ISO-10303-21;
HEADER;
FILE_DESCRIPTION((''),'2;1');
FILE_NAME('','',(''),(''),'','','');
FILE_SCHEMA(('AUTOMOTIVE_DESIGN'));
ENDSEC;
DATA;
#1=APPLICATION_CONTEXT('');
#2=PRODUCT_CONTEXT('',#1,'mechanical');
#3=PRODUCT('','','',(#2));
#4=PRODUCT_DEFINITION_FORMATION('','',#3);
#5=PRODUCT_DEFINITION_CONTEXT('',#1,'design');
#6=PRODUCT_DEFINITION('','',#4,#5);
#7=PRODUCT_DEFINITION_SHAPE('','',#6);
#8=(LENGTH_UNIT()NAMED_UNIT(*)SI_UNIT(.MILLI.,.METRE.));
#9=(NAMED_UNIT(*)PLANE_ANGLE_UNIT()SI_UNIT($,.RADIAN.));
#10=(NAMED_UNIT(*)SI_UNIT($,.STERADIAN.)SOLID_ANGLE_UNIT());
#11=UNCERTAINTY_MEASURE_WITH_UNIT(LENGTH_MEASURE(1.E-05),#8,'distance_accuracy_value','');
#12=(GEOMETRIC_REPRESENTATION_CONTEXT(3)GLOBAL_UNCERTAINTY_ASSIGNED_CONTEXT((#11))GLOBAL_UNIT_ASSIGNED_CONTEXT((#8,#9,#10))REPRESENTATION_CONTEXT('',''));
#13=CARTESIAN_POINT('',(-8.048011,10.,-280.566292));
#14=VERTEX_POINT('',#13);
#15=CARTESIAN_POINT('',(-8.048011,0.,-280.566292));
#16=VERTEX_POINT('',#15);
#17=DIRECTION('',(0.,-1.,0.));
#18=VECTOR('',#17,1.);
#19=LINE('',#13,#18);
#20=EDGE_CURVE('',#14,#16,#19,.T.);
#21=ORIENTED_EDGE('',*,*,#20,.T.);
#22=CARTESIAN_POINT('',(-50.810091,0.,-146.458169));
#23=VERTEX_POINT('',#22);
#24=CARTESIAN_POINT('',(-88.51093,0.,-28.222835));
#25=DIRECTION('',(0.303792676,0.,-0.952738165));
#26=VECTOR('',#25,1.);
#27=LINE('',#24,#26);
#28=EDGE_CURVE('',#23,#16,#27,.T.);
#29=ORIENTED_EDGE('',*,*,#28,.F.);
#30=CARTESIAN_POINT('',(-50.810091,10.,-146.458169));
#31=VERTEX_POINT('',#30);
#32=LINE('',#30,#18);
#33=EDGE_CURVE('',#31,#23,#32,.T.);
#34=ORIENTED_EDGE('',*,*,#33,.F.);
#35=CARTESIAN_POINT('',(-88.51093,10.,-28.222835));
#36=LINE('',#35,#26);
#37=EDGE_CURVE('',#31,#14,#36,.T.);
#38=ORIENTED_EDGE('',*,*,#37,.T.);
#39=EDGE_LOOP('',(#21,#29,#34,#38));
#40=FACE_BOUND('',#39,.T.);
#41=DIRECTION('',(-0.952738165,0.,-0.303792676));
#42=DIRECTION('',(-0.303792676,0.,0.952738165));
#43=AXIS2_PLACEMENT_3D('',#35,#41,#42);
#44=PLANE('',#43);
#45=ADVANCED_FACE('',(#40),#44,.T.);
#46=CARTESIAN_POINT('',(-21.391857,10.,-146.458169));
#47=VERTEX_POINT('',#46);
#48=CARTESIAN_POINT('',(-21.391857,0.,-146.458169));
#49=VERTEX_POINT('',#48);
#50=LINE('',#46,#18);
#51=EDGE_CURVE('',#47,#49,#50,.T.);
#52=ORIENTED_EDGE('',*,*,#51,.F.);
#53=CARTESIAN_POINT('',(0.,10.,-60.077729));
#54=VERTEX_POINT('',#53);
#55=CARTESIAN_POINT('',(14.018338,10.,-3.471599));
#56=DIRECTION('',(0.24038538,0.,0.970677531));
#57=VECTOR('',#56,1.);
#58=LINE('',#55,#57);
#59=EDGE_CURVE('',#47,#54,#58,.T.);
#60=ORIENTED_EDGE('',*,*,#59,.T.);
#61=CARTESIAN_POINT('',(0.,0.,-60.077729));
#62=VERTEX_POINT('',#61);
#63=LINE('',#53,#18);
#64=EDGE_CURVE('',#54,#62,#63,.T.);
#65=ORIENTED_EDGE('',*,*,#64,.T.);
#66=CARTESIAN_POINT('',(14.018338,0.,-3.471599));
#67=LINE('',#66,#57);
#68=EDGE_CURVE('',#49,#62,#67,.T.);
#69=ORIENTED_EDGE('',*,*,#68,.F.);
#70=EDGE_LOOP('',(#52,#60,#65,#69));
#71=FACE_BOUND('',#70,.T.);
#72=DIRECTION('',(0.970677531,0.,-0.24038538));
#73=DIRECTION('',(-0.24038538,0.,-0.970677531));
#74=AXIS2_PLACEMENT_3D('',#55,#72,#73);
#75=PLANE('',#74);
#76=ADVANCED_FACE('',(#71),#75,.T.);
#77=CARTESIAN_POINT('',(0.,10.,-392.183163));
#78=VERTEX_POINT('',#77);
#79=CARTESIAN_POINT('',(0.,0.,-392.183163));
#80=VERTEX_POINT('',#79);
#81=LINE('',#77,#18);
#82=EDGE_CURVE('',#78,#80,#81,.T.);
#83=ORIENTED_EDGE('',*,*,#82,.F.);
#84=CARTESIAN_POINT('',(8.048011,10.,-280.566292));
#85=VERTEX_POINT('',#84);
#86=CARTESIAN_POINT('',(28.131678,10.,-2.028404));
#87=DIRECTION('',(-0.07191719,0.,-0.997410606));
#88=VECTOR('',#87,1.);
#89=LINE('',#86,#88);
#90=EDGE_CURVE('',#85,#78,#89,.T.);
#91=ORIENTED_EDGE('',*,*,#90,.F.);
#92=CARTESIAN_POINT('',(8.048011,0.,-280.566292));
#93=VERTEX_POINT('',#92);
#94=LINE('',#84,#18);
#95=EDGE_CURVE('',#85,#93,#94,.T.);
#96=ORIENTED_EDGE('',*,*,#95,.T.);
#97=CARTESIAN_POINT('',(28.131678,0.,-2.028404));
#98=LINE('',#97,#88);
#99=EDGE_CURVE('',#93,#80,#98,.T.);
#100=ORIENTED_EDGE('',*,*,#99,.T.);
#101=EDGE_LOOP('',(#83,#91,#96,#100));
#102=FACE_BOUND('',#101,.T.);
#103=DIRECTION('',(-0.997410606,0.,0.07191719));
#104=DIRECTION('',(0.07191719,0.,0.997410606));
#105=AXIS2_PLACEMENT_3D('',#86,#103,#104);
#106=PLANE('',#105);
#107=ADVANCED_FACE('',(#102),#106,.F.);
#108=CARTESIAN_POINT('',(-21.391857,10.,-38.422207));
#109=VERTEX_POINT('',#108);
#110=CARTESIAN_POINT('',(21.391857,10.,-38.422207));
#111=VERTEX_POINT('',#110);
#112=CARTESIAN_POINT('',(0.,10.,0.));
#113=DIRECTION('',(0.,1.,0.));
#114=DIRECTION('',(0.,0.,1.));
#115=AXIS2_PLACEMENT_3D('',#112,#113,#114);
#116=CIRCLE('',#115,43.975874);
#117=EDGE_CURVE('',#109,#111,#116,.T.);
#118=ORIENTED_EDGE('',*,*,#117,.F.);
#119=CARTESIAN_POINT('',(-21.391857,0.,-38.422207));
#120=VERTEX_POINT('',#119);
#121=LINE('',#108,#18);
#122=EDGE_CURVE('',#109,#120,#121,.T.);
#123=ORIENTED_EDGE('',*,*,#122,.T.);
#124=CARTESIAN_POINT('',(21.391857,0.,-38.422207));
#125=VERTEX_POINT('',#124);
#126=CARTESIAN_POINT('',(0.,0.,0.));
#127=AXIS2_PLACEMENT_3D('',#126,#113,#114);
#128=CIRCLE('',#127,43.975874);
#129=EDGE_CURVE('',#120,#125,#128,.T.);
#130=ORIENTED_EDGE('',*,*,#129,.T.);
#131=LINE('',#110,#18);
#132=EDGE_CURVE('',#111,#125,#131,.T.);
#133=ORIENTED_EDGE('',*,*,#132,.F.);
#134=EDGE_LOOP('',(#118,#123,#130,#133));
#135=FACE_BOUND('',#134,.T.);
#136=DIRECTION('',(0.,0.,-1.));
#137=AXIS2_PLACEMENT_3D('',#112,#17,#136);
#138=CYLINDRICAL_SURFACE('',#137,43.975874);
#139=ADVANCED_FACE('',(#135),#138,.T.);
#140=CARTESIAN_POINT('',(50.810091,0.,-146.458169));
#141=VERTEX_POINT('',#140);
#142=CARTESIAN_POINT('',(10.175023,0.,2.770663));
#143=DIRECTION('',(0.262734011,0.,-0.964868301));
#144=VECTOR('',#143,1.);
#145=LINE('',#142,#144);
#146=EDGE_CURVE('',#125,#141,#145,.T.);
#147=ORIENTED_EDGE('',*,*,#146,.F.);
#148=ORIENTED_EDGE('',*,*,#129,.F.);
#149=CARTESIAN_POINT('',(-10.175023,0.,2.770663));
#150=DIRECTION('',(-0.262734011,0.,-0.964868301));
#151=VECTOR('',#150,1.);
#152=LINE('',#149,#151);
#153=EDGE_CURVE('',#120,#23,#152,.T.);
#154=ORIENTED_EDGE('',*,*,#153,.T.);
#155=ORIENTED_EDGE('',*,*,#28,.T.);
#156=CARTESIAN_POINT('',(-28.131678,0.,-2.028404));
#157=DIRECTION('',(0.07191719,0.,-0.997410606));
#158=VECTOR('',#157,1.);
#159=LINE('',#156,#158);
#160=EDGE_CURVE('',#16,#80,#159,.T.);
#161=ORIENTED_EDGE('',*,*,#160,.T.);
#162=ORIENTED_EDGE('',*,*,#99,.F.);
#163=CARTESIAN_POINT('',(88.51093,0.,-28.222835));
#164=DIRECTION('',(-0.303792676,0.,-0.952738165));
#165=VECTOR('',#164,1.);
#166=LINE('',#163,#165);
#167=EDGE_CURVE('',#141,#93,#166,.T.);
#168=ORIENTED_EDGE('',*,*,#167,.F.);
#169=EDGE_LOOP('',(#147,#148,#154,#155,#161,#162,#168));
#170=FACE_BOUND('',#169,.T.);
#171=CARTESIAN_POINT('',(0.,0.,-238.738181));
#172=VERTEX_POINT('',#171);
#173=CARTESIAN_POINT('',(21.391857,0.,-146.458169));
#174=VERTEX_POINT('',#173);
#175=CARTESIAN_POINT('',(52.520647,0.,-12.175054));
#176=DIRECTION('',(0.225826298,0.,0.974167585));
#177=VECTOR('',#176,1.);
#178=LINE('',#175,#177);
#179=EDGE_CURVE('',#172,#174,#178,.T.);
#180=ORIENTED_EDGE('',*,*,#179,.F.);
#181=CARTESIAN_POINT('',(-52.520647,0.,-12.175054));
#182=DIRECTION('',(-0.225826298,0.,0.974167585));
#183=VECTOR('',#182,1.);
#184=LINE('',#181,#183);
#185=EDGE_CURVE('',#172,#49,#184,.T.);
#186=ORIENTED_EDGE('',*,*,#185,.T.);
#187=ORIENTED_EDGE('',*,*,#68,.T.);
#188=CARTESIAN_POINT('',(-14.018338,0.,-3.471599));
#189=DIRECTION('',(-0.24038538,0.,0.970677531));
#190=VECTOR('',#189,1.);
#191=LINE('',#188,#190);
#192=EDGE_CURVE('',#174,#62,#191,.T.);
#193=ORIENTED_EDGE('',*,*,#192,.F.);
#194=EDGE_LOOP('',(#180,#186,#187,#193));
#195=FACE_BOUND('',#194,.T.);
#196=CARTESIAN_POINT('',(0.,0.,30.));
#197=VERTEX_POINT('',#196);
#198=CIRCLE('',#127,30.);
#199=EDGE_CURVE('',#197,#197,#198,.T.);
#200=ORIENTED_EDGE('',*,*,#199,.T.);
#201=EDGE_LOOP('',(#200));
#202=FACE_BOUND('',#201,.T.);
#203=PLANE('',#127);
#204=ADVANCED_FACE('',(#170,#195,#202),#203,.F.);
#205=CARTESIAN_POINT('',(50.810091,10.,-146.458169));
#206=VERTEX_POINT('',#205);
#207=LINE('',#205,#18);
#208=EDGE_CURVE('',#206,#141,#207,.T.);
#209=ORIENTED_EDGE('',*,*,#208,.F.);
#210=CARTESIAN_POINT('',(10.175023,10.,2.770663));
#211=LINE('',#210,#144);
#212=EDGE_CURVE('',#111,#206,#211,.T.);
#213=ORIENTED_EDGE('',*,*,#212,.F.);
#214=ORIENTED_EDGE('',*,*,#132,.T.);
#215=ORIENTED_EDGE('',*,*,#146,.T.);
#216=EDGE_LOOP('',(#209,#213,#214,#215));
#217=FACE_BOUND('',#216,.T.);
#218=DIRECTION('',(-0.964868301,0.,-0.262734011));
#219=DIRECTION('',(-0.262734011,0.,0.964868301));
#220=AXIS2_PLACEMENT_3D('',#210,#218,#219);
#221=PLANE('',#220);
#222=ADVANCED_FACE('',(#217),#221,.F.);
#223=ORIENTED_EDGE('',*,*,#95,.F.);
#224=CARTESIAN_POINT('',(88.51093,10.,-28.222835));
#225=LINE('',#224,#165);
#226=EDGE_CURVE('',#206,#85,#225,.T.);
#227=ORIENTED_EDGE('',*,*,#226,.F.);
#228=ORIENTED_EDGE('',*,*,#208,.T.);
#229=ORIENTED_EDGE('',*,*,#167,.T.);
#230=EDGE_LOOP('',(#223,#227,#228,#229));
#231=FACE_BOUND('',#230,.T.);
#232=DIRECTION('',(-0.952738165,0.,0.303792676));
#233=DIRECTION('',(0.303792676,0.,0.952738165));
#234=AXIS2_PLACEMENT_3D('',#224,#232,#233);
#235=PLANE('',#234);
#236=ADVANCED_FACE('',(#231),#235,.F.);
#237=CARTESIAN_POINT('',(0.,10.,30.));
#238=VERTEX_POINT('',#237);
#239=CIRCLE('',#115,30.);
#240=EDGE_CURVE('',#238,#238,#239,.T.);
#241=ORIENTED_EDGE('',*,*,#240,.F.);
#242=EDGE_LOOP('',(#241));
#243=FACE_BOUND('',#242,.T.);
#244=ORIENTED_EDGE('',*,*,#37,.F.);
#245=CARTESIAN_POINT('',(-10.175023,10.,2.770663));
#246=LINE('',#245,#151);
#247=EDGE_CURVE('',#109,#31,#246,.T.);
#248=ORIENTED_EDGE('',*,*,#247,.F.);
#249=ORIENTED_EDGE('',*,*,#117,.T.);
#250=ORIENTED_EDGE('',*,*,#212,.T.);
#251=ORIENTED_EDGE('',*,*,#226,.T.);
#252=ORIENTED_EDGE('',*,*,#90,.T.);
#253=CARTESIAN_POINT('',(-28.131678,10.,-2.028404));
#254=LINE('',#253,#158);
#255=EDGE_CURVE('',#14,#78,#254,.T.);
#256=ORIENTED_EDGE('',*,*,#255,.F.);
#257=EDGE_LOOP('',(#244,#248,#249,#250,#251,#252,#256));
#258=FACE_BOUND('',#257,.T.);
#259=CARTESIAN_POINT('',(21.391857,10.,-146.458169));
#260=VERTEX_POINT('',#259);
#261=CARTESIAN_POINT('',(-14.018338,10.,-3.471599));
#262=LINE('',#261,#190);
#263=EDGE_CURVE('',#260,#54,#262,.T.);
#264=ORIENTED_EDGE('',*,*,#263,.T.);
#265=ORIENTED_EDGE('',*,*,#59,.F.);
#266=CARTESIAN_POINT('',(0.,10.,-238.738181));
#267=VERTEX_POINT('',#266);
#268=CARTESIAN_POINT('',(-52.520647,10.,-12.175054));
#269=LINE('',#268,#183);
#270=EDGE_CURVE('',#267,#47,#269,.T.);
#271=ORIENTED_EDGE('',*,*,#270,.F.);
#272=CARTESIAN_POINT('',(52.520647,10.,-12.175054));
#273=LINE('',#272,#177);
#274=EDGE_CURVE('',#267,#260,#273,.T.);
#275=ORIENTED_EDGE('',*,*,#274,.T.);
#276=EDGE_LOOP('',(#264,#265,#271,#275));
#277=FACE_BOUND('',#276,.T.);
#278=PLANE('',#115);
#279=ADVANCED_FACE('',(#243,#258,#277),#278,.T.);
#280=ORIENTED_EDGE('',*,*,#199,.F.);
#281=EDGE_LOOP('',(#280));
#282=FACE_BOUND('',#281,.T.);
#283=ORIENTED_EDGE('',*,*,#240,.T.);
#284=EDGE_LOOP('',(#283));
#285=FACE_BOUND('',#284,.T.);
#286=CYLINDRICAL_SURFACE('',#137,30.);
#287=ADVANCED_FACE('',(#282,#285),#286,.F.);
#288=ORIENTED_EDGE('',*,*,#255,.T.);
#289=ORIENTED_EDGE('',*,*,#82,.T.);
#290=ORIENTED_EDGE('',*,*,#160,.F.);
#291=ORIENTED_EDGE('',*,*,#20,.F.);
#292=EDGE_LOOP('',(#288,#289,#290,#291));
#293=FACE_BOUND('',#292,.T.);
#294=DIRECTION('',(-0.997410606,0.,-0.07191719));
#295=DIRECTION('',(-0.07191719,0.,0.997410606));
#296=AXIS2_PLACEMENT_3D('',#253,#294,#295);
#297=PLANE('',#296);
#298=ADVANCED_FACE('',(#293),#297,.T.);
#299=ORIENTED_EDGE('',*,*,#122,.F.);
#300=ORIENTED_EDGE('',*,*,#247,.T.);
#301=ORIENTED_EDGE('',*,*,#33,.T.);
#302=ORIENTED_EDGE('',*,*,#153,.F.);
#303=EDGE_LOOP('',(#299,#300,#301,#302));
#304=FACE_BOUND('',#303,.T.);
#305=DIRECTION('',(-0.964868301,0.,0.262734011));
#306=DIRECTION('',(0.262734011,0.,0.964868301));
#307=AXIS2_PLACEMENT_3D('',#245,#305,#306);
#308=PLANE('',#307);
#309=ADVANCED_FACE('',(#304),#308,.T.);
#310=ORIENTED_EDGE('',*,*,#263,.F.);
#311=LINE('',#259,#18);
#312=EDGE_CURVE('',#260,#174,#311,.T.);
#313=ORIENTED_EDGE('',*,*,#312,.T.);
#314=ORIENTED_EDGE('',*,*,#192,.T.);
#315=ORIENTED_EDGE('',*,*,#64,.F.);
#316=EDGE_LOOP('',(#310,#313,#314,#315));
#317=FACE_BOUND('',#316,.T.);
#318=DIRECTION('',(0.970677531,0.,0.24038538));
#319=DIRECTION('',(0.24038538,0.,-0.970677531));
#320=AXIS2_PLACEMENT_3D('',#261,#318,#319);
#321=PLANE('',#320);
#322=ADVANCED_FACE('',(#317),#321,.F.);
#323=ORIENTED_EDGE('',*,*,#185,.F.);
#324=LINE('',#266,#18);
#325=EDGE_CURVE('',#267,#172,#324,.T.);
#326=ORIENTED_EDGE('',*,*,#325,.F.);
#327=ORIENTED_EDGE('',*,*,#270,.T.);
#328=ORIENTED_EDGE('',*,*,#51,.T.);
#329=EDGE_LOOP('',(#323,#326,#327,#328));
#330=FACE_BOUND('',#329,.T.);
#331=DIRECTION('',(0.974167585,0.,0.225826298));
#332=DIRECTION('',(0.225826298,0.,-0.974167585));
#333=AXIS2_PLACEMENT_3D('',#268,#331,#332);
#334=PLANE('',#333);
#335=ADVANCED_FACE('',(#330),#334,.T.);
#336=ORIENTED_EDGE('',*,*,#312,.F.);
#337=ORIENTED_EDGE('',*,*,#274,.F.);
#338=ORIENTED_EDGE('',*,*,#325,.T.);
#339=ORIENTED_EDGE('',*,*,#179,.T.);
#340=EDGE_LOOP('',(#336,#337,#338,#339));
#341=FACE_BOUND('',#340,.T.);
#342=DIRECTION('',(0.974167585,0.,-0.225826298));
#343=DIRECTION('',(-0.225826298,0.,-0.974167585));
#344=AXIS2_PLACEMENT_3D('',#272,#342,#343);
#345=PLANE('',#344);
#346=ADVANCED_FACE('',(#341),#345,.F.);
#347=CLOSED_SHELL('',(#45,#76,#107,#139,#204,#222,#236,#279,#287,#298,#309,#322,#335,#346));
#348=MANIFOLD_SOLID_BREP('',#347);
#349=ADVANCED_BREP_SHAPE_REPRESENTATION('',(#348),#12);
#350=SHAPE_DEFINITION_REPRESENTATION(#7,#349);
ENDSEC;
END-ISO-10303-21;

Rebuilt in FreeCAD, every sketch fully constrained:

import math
import FreeCAD as App
import Part
import Sketcher
from FreeCAD import Vector


def add_polygon(sketch, points):
    """Adds a closed chain of lines whose ends are joined by coincident constraints."""
    first, n = sketch.GeometryCount, len(points)
    for a, b in zip(points, points[1:] + points[:1]):
        sketch.addGeometry(Part.LineSegment(App.Vector(*a, 0), App.Vector(*b, 0)), False)
    for i in range(n):
        sketch.addConstraint(Sketcher.Constraint("Coincident", first + i, 2, first + (i + 1) % n, 1))

doc = App.newDocument("Part")
params = doc.addObject("Spreadsheet::Sheet", "Params")
for row, (alias, value) in enumerate([
    ("sketch1_diameter", "60 mm"),
    ("pad1_length", "10 mm"),
], start=1):
    params.set(f"A{row}", alias)
    params.set(f"B{row}", "=" + value)
    params.setAlias(f"B{row}", alias)

body = doc.addObject("PartDesign::Body", "Body")

# Sketch on XZ plane
sketch1 = doc.addObject("Sketcher::SketchObject", "Sketch")
body.addObject(sketch1)
sketch1.AttachmentSupport = (doc.XZ_Plane, [""])
sketch1.MapMode = "FlatFace"
sketch1.addGeometry(Part.LineSegment(Vector(-51, -146, 0), Vector(-21, -38, 0)), False)  # 0
sketch1.addGeometry(Part.ArcOfCircle(Part.Circle(Vector(0, 0, 0), Vector(0, 0, 1), 44), math.radians(-61), math.radians(241)), False)  # 1
sketch1.addGeometry(Part.LineSegment(Vector(21, -38, 0), Vector(51, -146, 0)), False)  # 2
sketch1.addGeometry(Part.LineSegment(Vector(51, -146, 0), Vector(8, -281, 0)), False)  # 3
sketch1.addGeometry(Part.LineSegment(Vector(8, -281, 0), Vector(0, -392, 0)), False)  # 4
sketch1.addGeometry(Part.LineSegment(Vector(0, -392, 0), Vector(-8, -281, 0)), False)  # 5
sketch1.addGeometry(Part.LineSegment(Vector(-8, -281, 0), Vector(-51, -146, 0)), False)  # 6
sketch1.addGeometry(Part.Circle(Vector(0, 0, 0), Vector(0, 0, 1), 30), False)  # 7
add_polygon(sketch1, [(0, -239), (21, -146), (0, -60), (-21, -146)])  # lines 8-11
sketch1.addConstraint([
    Sketcher.Constraint("Coincident", 0, 2, 1, 2),
    Sketcher.Constraint("Coincident", 1, 1, 2, 1),
    Sketcher.Constraint("Coincident", 2, 2, 3, 1),
    Sketcher.Constraint("Coincident", 3, 2, 4, 1),
    Sketcher.Constraint("Coincident", 4, 2, 5, 1),
    Sketcher.Constraint("Coincident", 5, 2, 6, 1),
    Sketcher.Constraint("Coincident", 6, 2, 0, 1),
    Sketcher.Constraint("Coincident", 1, 3, -1, 1),
    Sketcher.Constraint("Coincident", 7, 3, -1, 1),
    Sketcher.Constraint("Symmetric", 3, 2, 5, 2, -2),
    Sketcher.Constraint("Symmetric", 2, 2, 6, 2, -2),
    Sketcher.Constraint("Symmetric", 8, 2, 10, 2, -2),
    Sketcher.Constraint("PointOnObject", 4, 2, -2),
    Sketcher.Constraint("PointOnObject", 9, 2, -2),
    Sketcher.Constraint("PointOnObject", 11, 2, -2),
    Sketcher.Constraint("Horizontal", 0, 2, 1, 1),
    Sketcher.Constraint("Horizontal", 6, 2, 8, 2),
    Sketcher.Constraint("Vertical", 1, 1, 8, 2),
    Sketcher.Constraint("Diameter", 7, 60.0),
    Sketcher.Constraint("Radius", 1, 43.975874),
    Sketcher.Constraint("Distance", 4, 111.906641),
    Sketcher.Constraint("Distance", 8, 94.72704),
    Sketcher.Constraint("Distance", 9, 88.989842),
    Sketcher.Constraint("DistanceX", -1, 1, 2, 2, 50.810091),
    Sketcher.Constraint("DistanceY", 2, 2, -1, 1, 146.458169),
    Sketcher.Constraint("DistanceX", -1, 1, 3, 2, 8.048011),
    Sketcher.Constraint("DistanceY", 9, 2, -1, 1, 60.077729),
    Sketcher.Constraint("DistanceY", 3, 2, 11, 2, 41.828111),
])
sketch1.setExpression("Constraints[22]", "Params.sketch1_diameter")
pad1 = doc.addObject("PartDesign::Pad", "Pad")
body.addObject(pad1)
pad1.Profile = sketch1
pad1.setExpression("Length", "Params.pad1_length")
pad1.Reversed = True

doc.recompute()
